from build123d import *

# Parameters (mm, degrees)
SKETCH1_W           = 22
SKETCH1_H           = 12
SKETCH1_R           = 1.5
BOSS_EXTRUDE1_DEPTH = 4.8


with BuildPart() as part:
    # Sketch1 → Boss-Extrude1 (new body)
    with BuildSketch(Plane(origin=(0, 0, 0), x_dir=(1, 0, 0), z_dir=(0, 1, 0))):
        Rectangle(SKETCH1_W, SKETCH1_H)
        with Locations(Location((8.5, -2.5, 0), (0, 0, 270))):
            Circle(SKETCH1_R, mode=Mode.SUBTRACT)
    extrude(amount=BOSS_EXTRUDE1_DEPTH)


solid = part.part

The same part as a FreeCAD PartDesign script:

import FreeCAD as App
import Part
import Sketcher

V = App.Vector


def add_polygon(sketch, points):
    """Adds a closed chain of lines whose ends are joined by coincident constraints."""
    first, n = sketch.GeometryCount, len(points)
    for a, b in zip(points, points[1:] + points[:1]):
        sketch.addGeometry(Part.LineSegment(App.Vector(*a, 0), App.Vector(*b, 0)), False)
    for i in range(n):
        sketch.addConstraint(Sketcher.Constraint("Coincident", first + i, 2, first + (i + 1) % n, 1))

doc = App.newDocument("Part")
body = doc.addObject("PartDesign::Body", "Body")

sketch1 = body.newObject("Sketcher::SketchObject", "Sketch")
sketch1.AttachmentSupport = (doc.getObject("XZ_Plane"), [""])
sketch1.MapMode = "FlatFace"
add_polygon(sketch1, [(-11, -6), (-11, 6), (11, 6), (11, -6)])
sketch1.addGeometry(Part.Circle(V(8.5, 2.5, 0), V(0, 0, 1), 1.5), False)
sketch1.addConstraint([
    Sketcher.Constraint("Vertical", 0),
    Sketcher.Constraint("Horizontal", 1),
    Sketcher.Constraint("Vertical", 2),
    Sketcher.Constraint("Horizontal", 3),
    Sketcher.Constraint("Symmetric", 0, 2, 2, 2, -1, 1),
    Sketcher.Constraint("Diameter", 4, 3.0),
    Sketcher.Constraint("DistanceX", 1, 1, 1, 2, 22.0),
    Sketcher.Constraint("DistanceY", 0, 1, 0, 2, 12.0),
    Sketcher.Constraint("DistanceX", -1, 1, 4, 3, 8.5),
    Sketcher.Constraint("DistanceY", -1, 1, 4, 3, 2.5),
])
pad1 = body.newObject("PartDesign::Pad", "Pad")
pad1.Profile = sketch1
pad1.Length = 4.8
pad1.Reversed = True

doc.recompute()
